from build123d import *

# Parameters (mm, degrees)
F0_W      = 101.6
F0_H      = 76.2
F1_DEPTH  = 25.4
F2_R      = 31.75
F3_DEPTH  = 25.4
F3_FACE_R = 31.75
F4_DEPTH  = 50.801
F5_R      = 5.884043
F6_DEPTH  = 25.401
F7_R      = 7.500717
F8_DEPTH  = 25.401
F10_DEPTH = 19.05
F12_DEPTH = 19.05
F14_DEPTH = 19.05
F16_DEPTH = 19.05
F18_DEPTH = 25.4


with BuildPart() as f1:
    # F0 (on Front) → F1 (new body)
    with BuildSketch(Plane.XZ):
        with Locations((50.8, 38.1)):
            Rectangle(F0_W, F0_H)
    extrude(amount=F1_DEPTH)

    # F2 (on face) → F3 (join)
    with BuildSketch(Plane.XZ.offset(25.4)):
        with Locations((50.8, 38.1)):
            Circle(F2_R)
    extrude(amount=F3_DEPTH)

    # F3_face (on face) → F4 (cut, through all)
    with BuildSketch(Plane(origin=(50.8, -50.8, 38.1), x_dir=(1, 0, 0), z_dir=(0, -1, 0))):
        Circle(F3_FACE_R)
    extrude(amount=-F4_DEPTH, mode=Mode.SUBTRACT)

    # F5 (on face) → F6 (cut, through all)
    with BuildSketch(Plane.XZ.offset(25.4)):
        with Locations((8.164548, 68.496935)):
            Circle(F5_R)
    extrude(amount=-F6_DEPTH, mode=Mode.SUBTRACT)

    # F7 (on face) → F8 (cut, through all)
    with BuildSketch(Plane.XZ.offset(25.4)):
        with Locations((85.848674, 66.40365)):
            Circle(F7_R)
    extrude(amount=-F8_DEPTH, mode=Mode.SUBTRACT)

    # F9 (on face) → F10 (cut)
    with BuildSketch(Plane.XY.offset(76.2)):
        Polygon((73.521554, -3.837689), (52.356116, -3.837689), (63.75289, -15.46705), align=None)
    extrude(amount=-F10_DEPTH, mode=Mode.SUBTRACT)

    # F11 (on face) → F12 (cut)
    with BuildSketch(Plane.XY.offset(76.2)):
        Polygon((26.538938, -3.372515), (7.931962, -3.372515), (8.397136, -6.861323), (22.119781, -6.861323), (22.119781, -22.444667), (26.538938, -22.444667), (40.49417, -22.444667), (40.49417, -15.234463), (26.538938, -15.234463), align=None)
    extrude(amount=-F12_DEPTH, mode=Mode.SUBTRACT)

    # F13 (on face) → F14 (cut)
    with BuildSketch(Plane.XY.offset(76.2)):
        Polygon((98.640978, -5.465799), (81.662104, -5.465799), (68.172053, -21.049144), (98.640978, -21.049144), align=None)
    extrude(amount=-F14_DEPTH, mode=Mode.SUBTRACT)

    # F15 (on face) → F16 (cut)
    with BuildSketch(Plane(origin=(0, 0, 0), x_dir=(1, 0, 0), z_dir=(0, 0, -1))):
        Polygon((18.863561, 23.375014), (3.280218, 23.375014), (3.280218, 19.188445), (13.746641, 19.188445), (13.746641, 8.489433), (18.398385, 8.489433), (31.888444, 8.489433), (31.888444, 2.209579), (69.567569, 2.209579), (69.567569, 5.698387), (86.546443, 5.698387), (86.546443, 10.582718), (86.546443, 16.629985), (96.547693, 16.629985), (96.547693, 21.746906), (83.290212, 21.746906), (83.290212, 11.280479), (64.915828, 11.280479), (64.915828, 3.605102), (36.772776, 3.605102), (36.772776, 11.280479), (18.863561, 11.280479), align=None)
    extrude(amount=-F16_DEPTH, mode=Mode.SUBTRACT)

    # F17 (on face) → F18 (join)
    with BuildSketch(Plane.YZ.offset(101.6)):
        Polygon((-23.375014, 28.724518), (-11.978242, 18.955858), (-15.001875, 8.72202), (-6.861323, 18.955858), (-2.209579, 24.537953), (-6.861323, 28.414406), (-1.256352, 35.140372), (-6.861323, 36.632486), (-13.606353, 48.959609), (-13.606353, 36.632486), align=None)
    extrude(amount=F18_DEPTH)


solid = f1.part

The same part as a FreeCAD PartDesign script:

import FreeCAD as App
import Part
import Sketcher
from FreeCAD import Vector
Q = App.Units.Quantity

doc = App.newDocument("Part")
params = doc.addObject("Spreadsheet::Sheet", "Params")
for row, (alias, value) in enumerate([
    ("sketch1_width", "4 in"),
    ("sketch1_height", "3 in"),
    ("pad1_length", "1 in"),
    ("sketch2_diameter", "2.5 in"),
    ("pad2_length", "1 in"),
    ("sketch3_diameter", "2.5 in"),
    ("pocket4_length", "0.75 in"),
    ("pocket5_length", "0.75 in"),
    ("pocket6_length", "0.75 in"),
    ("pocket7_length", "0.75 in"),
    ("pad3_length", "1 in"),
], start=1):
    params.set(f"A{row}", alias)
    params.set(f"B{row}", "=" + value)
    params.setAlias(f"B{row}", alias)

body = doc.addObject("PartDesign::Body", "Body")

# Sketch on XZ plane
sketch1 = doc.addObject("Sketcher::SketchObject", "Sketch")
body.addObject(sketch1)
sketch1.AttachmentSupport = (doc.XZ_Plane, [""])
sketch1.MapMode = "FlatFace"
sketch1.addGeometry([
    Part.LineSegment(Vector(0, 76, 0), Vector(0, 0, 0)),
    Part.LineSegment(Vector(0, 0, 0), Vector(102, 0, 0)),
    Part.LineSegment(Vector(102, 0, 0), Vector(102, 76, 0)),
    Part.LineSegment(Vector(102, 76, 0), Vector(0, 76, 0)),
], False)
sketch1.addConstraint([
    Sketcher.Constraint("Coincident", 0, 2, 1, 1),
    Sketcher.Constraint("Coincident", 1, 2, 2, 1),
    Sketcher.Constraint("Coincident", 2, 2, 3, 1),
    Sketcher.Constraint("Coincident", 3, 2, 0, 1),
    Sketcher.Constraint("Vertical", 0),
    Sketcher.Constraint("Horizontal", 1),
    Sketcher.Constraint("Vertical", 2),
    Sketcher.Constraint("Horizontal", 3),
    Sketcher.Constraint("Coincident", 0, 2, -1, 1),
    Sketcher.Constraint("DistanceX", 1, 1, 1, 2, Q("4 in")),
    Sketcher.Constraint("DistanceY", 0, 2, 0, 1, Q("3 in")),
])
sketch1.setExpression("Constraints[9]", "Params.sketch1_width")
sketch1.setExpression("Constraints[10]", "Params.sketch1_height")
pad1 = doc.addObject("PartDesign::Pad", "Pad")
body.addObject(pad1)
pad1.Profile = sketch1
pad1.setExpression("Length", "Params.pad1_length")

# Sketch on XZ plane
sketch2 = doc.addObject("Sketcher::SketchObject", "Sketch001")
body.addObject(sketch2)
sketch2.AttachmentSupport = (doc.XZ_Plane, [""])
sketch2.MapMode = "FlatFace"
sketch2.AttachmentOffset = App.Placement(Vector(0, 0, 1 * 25.4), App.Rotation())
sketch2.addGeometry(Part.Circle(Vector(51, 38, 0), Vector(0, 0, 1), 32), False)
sketch2.addConstraint([
    Sketcher.Constraint("Diameter", 0, Q("2.5 in")),
    Sketcher.Constraint("DistanceX", -1, 1, 0, 3, Q("2 in")),
    Sketcher.Constraint("DistanceY", -1, 1, 0, 3, Q("1.5 in")),
])
sketch2.setExpression("Constraints[0]", "Params.sketch2_diameter")
pad2 = doc.addObject("PartDesign::Pad", "Pad001")
body.addObject(pad2)
pad2.Profile = sketch2
pad2.setExpression("Length", "Params.pad2_length")

# Sketch on XZ plane
sketch3 = doc.addObject("Sketcher::SketchObject", "Sketch002")
body.addObject(sketch3)
sketch3.AttachmentSupport = (doc.XZ_Plane, [""])
sketch3.MapMode = "FlatFace"
sketch3.AttachmentOffset = App.Placement(Vector(0, 0, 2 * 25.4), App.Rotation())
sketch3.addGeometry(Part.Circle(Vector(51, 38, 0), Vector(0, 0, 1), 32), False)
sketch3.addConstraint([
    Sketcher.Constraint("Diameter", 0, Q("2.5 in")),
    Sketcher.Constraint("DistanceX", -1, 1, 0, 3, Q("2 in")),
    Sketcher.Constraint("DistanceY", -1, 1, 0, 3, Q("1.5 in")),
])
sketch3.setExpression("Constraints[0]", "Params.sketch3_diameter")
pocket1 = doc.addObject("PartDesign::Pocket", "Pocket")
body.addObject(pocket1)
pocket1.Profile = sketch3
pocket1.Type = "ThroughAll"

# Sketch on XZ plane
sketch4 = doc.addObject("Sketcher::SketchObject", "Sketch003")
body.addObject(sketch4)
sketch4.AttachmentSupport = (doc.XZ_Plane, [""])
sketch4.MapMode = "FlatFace"
sketch4.AttachmentOffset = App.Placement(Vector(0, 0, 1 * 25.4), App.Rotation())
sketch4.addGeometry(Part.Circle(Vector(8, 68, 0), Vector(0, 0, 1), 6), False)
sketch4.addConstraint([
    Sketcher.Constraint("Diameter", 0, 11.768086),
    Sketcher.Constraint("DistanceX", -1, 1, 0, 3, 8.164548),
    Sketcher.Constraint("DistanceY", -1, 1, 0, 3, 68.496935),
])
pocket2 = doc.addObject("PartDesign::Pocket", "Pocket001")
body.addObject(pocket2)
pocket2.Profile = sketch4
pocket2.Type = "ThroughAll"

# Sketch on XZ plane
sketch5 = doc.addObject("Sketcher::SketchObject", "Sketch004")
body.addObject(sketch5)
sketch5.AttachmentSupport = (doc.XZ_Plane, [""])
sketch5.MapMode = "FlatFace"
sketch5.AttachmentOffset = App.Placement(Vector(0, 0, 1 * 25.4), App.Rotation())
sketch5.addGeometry(Part.Circle(Vector(86, 66, 0), Vector(0, 0, 1), 8), False)
sketch5.addConstraint([
    Sketcher.Constraint("Diameter", 0, 15.001434),
    Sketcher.Constraint("DistanceY", -1, 1, 0, 3, 66.40365),
    Sketcher.Constraint("DistanceX", -1, 1, 0, 3, 85.848674),
])
pocket3 = doc.addObject("PartDesign::Pocket", "Pocket002")
body.addObject(pocket3)
pocket3.Profile = sketch5
pocket3.Type = "ThroughAll"

# Sketch on XY plane
sketch6 = doc.addObject("Sketcher::SketchObject", "Sketch005")
body.addObject(sketch6)
sketch6.AttachmentSupport = (doc.XY_Plane, [""])
sketch6.MapMode = "FlatFace"
sketch6.AttachmentOffset = App.Placement(Vector(0, 0, 3 * 25.4), App.Rotation())
sketch6.addGeometry([
    Part.LineSegment(Vector(74, -4, 0), Vector(52, -4, 0)),
    Part.LineSegment(Vector(52, -4, 0), Vector(64, -15, 0)),
    Part.LineSegment(Vector(64, -15, 0), Vector(74, -4, 0)),
], False)
sketch6.addConstraint([
    Sketcher.Constraint("Coincident", 0, 2, 1, 1),
    Sketcher.Constraint("Coincident", 1, 2, 2, 1),
    Sketcher.Constraint("Coincident", 2, 2, 0, 1),
    Sketcher.Constraint("Horizontal", 0),
    Sketcher.Constraint("DistanceX", 0, 2, 0, 1, 21.165438),
    Sketcher.Constraint("DistanceY", 0, 2, -1, 1, 3.837689),
    Sketcher.Constraint("DistanceX", -1, 1, 1, 2, 63.75289),
    Sketcher.Constraint("DistanceY", 1, 2, -1, 1, 15.46705),
    Sketcher.Constraint("Distance", 1, 16.282767),
])
pocket4 = doc.addObject("PartDesign::Pocket", "Pocket003")
body.addObject(pocket4)
pocket4.Profile = sketch6
pocket4.setExpression("Length", "Params.pocket4_length")

# Sketch on XY plane
sketch7 = doc.addObject("Sketcher::SketchObject", "Sketch006")
body.addObject(sketch7)
sketch7.AttachmentSupport = (doc.XY_Plane, [""])
sketch7.MapMode = "FlatFace"
sketch7.AttachmentOffset = App.Placement(Vector(0, 0, 3 * 25.4), App.Rotation())
sketch7.addGeometry([
    Part.LineSegment(Vector(26.5, -3.4, 0), Vector(7.9, -3.4, 0)),  # 0
    Part.LineSegment(Vector(7.9, -3.4, 0), Vector(8.4, -6.9, 0)),  # 1
    Part.LineSegment(Vector(8.4, -6.9, 0), Vector(22.1, -6.9, 0)),  # 2
    Part.LineSegment(Vector(22.1, -6.9, 0), Vector(22.1, -22.4, 0)),  # 3
    Part.LineSegment(Vector(22.1, -22.4, 0), Vector(40.5, -22.4, 0)),  # 4
    Part.LineSegment(Vector(40.5, -22.4, 0), Vector(40.5, -15.2, 0)),  # 5
    Part.LineSegment(Vector(40.5, -15.2, 0), Vector(26.5, -15.2, 0)),  # 6
    Part.LineSegment(Vector(26.5, -15.2, 0), Vector(26.5, -3.4, 0)),  # 7
], False)
sketch7.addConstraint([
    Sketcher.Constraint("Coincident", 0, 2, 1, 1),
    Sketcher.Constraint("Coincident", 1, 2, 2, 1),
    Sketcher.Constraint("Coincident", 2, 2, 3, 1),
    Sketcher.Constraint("Coincident", 3, 2, 4, 1),
    Sketcher.Constraint("Coincident", 4, 2, 5, 1),
    Sketcher.Constraint("Coincident", 5, 2, 6, 1),
    Sketcher.Constraint("Coincident", 6, 2, 7, 1),
    Sketcher.Constraint("Coincident", 7, 2, 0, 1),
    Sketcher.Constraint("Horizontal", 0),
    Sketcher.Constraint("Horizontal", 2),
    Sketcher.Constraint("Vertical", 3),
    Sketcher.Constraint("Horizontal", 4),
    Sketcher.Constraint("Vertical", 5),
    Sketcher.Constraint("Horizontal", 6),
    Sketcher.Constraint("Vertical", 7),
    Sketcher.Constraint("DistanceX", 4, 1, 4, 2, 18.374389),
    Sketcher.Constraint("DistanceX", 6, 2, 6, 1, 13.955232),
    Sketcher.Constraint("DistanceX", 0, 2, 0, 1, 18.606976),
    Sketcher.Constraint("DistanceX", 2, 1, 2, 2, 13.722645),
    Sketcher.Constraint("DistanceY", 3, 2, 3, 1, 15.583344),
    Sketcher.Constraint("DistanceY", 5, 1, 5, 2, 7.210204),
    Sketcher.Constraint("DistanceY", 7, 1, 7, 2, 11.861948),
    Sketcher.Constraint("DistanceX", -1, 1, 2, 2, 22.119781),
    Sketcher.Constraint("DistanceY", 0, 2, -1, 1, 3.372515),
])
pocket5 = doc.addObject("PartDesign::Pocket", "Pocket004")
body.addObject(pocket5)
pocket5.Profile = sketch7
pocket5.setExpression("Length", "Params.pocket5_length")

# Sketch on XY plane
sketch8 = doc.addObject("Sketcher::SketchObject", "Sketch007")
body.addObject(sketch8)
sketch8.AttachmentSupport = (doc.XY_Plane, [""])
sketch8.MapMode = "FlatFace"
sketch8.AttachmentOffset = App.Placement(Vector(0, 0, 3 * 25.4), App.Rotation())
sketch8.addGeometry([
    Part.LineSegment(Vector(99, -5, 0), Vector(82, -5, 0)),
    Part.LineSegment(Vector(82, -5, 0), Vector(68, -21, 0)),
    Part.LineSegment(Vector(68, -21, 0), Vector(99, -21, 0)),
    Part.LineSegment(Vector(99, -21, 0), Vector(99, -5, 0)),
], False)
sketch8.addConstraint([
    Sketcher.Constraint("Coincident", 0, 2, 1, 1),
    Sketcher.Constraint("Coincident", 1, 2, 2, 1),
    Sketcher.Constraint("Coincident", 2, 2, 3, 1),
    Sketcher.Constraint("Coincident", 3, 2, 0, 1),
    Sketcher.Constraint("Horizontal", 0),
    Sketcher.Constraint("Horizontal", 2),
    Sketcher.Constraint("Vertical", 3),
    Sketcher.Constraint("DistanceY", 0, 2, -1, 1, 5.465799),
    Sketcher.Constraint("DistanceX", 0, 2, 0, 1, 16.978874),
    Sketcher.Constraint("DistanceX", 2, 1, 2, 2, 30.468925),
    Sketcher.Constraint("DistanceY", 3, 1, 3, 2, 15.583345),
    Sketcher.Constraint("DistanceX", -1, 1, 2, 2, 98.640978),
])
pocket6 = doc.addObject("PartDesign::Pocket", "Pocket005")
body.addObject(pocket6)
pocket6.Profile = sketch8
pocket6.setExpression("Length", "Params.pocket6_length")

# Sketch on XY plane
sketch9 = doc.addObject("Sketcher::SketchObject", "Sketch008")
body.addObject(sketch9)
sketch9.AttachmentSupport = (doc.XY_Plane, [""])
sketch9.MapMode = "FlatFace"
sketch9.addGeometry([
    Part.LineSegment(Vector(18.9, -23.4, 0), Vector(3.3, -23.4, 0)),  # 0
    Part.LineSegment(Vector(3.3, -23.4, 0), Vector(3.3, -19.2, 0)),  # 1
    Part.LineSegment(Vector(3.3, -19.2, 0), Vector(13.7, -19.2, 0)),  # 2
    Part.LineSegment(Vector(13.7, -19.2, 0), Vector(13.7, -8.5, 0)),  # 3
    Part.LineSegment(Vector(13.7, -8.5, 0), Vector(31.9, -8.5, 0)),  # 4
    Part.LineSegment(Vector(31.9, -8.5, 0), Vector(31.9, -2.2, 0)),  # 5
    Part.LineSegment(Vector(31.9, -2.2, 0), Vector(69.6, -2.2, 0)),  # 6
    Part.LineSegment(Vector(69.6, -2.2, 0), Vector(69.6, -5.7, 0)),  # 7
    Part.LineSegment(Vector(69.6, -5.7, 0), Vector(86.5, -5.7, 0)),  # 8
    Part.LineSegment(Vector(86.5, -5.7, 0), Vector(86.5, -16.6, 0)),  # 9
    Part.LineSegment(Vector(86.5, -16.6, 0), Vector(96.5, -16.6, 0)),  # 10
    Part.LineSegment(Vector(96.5, -16.6, 0), Vector(96.5, -21.7, 0)),  # 11
    Part.LineSegment(Vector(96.5, -21.7, 0), Vector(83.3, -21.7, 0)),  # 12
    Part.LineSegment(Vector(83.3, -21.7, 0), Vector(83.3, -11.3, 0)),  # 13
    Part.LineSegment(Vector(83.3, -11.3, 0), Vector(64.9, -11.3, 0)),  # 14
    Part.LineSegment(Vector(64.9, -11.3, 0), Vector(64.9, -3.6, 0)),  # 15
    Part.LineSegment(Vector(64.9, -3.6, 0), Vector(36.8, -3.6, 0)),  # 16
    Part.LineSegment(Vector(36.8, -3.6, 0), Vector(36.8, -11.3, 0)),  # 17
    Part.LineSegment(Vector(36.8, -11.3, 0), Vector(18.9, -11.3, 0)),  # 18
    Part.LineSegment(Vector(18.9, -11.3, 0), Vector(18.9, -23.4, 0)),  # 19
], False)
sketch9.addConstraint([
    Sketcher.Constraint("Coincident", 0, 2, 1, 1),
    Sketcher.Constraint("Coincident", 1, 2, 2, 1),
    Sketcher.Constraint("Coincident", 2, 2, 3, 1),
    Sketcher.Constraint("Coincident", 3, 2, 4, 1),
    Sketcher.Constraint("Coincident", 4, 2, 5, 1),
    Sketcher.Constraint("Coincident", 5, 2, 6, 1),
    Sketcher.Constraint("Coincident", 6, 2, 7, 1),
    Sketcher.Constraint("Coincident", 7, 2, 8, 1),
    Sketcher.Constraint("Coincident", 8, 2, 9, 1),
    Sketcher.Constraint("Coincident", 9, 2, 10, 1),
    Sketcher.Constraint("Coincident", 10, 2, 11, 1),
    Sketcher.Constraint("Coincident", 11, 2, 12, 1),
    Sketcher.Constraint("Coincident", 12, 2, 13, 1),
    Sketcher.Constraint("Coincident", 13, 2, 14, 1),
    Sketcher.Constraint("Coincident", 14, 2, 15, 1),
    Sketcher.Constraint("Coincident", 15, 2, 16, 1),
    Sketcher.Constraint("Coincident", 16, 2, 17, 1),
    Sketcher.Constraint("Coincident", 17, 2, 18, 1),
    Sketcher.Constraint("Coincident", 18, 2, 19, 1),
    Sketcher.Constraint("Coincident", 19, 2, 0, 1),
    Sketcher.Constraint("Horizontal", 0),
    Sketcher.Constraint("Vertical", 1),
    Sketcher.Constraint("Horizontal", 2),
    Sketcher.Constraint("Vertical", 3),
    Sketcher.Constraint("Horizontal", 4),
    Sketcher.Constraint("Vertical", 5),
    Sketcher.Constraint("Horizontal", 6),
    Sketcher.Constraint("Vertical", 7),
    Sketcher.Constraint("Horizontal", 8),
    Sketcher.Constraint("Vertical", 9),
    Sketcher.Constraint("Horizontal", 10),
    Sketcher.Constraint("Vertical", 11),
    Sketcher.Constraint("Horizontal", 12),
    Sketcher.Constraint("Vertical", 13),
    Sketcher.Constraint("Horizontal", 14),
    Sketcher.Constraint("Vertical", 15),
    Sketcher.Constraint("Horizontal", 16),
    Sketcher.Constraint("Vertical", 17),
    Sketcher.Constraint("Horizontal", 18),
    Sketcher.Constraint("Vertical", 19),
    Sketcher.Constraint("Horizontal", 14, 2, 17, 2),
    Sketcher.Constraint("DistanceY", 9, 2, 9, 1, 10.931598),
    Sketcher.Constraint("DistanceX", 10, 1, 10, 2, 10.00125),
    Sketcher.Constraint("DistanceX", 12, 2, 12, 1, 13.257481),
    Sketcher.Constraint("DistanceY", 1, 1, 1, 2, 4.186569),
    Sketcher.Constraint("DistanceY", 7, 2, 7, 1, 3.488808),
    Sketcher.Constraint("DistanceY", 11, 2, 11, 1, 5.116921),
    Sketcher.Constraint("DistanceY", 15, 2, -1, 1, 3.605102),
    Sketcher.Constraint("DistanceX", 4, 2, 8, 2, 54.657999),
    Sketcher.Constraint("DistanceX", 3, 2, 8, 2, 72.799802),
    Sketcher.Constraint("DistanceY", 14, 2, 6, 2, 9.0709),
    Sketcher.Constraint("DistanceX", 0, 2, 0, 1, 15.583343),
    Sketcher.Constraint("DistanceX", 2, 1, 2, 2, 10.466423),
    Sketcher.Constraint("DistanceX", 6, 1, 6, 2, 37.679125),
    Sketcher.Constraint("DistanceX", 14, 2, 14, 1, 18.374384),
    Sketcher.Constraint("DistanceX", 16, 2, 16, 1, 28.143052),
    Sketcher.Constraint("DistanceY", 3, 1, 3, 2, 10.699012),
    Sketcher.Constraint("DistanceY", 5, 1, 5, 2, 6.279854),
    Sketcher.Constraint("DistanceY", 15, 1, 15, 2, 7.675377),
    Sketcher.Constraint("DistanceX", -1, 1, 0, 2, 3.280218),
])
pocket7 = doc.addObject("PartDesign::Pocket", "Pocket006")
body.addObject(pocket7)
pocket7.Profile = sketch9
pocket7.setExpression("Length", "Params.pocket7_length")
pocket7.Reversed = True

# Sketch on YZ plane
sketch10 = doc.addObject("Sketcher::SketchObject", "Sketch009")
body.addObject(sketch10)
sketch10.AttachmentSupport = (doc.YZ_Plane, [""])
sketch10.MapMode = "FlatFace"
sketch10.AttachmentOffset = App.Placement(Vector(0, 0, 4 * 25.4), App.Rotation())
sketch10.addGeometry([
    Part.LineSegment(Vector(-23, 29, 0), Vector(-12, 19, 0)),  # 0
    Part.LineSegment(Vector(-12, 19, 0), Vector(-15, 9, 0)),  # 1
    Part.LineSegment(Vector(-15, 9, 0), Vector(-7, 19, 0)),  # 2
    Part.LineSegment(Vector(-7, 19, 0), Vector(-2, 25, 0)),  # 3
    Part.LineSegment(Vector(-2, 25, 0), Vector(-7, 28, 0)),  # 4
    Part.LineSegment(Vector(-7, 28, 0), Vector(-1, 35, 0)),  # 5
    Part.LineSegment(Vector(-1, 35, 0), Vector(-7, 37, 0)),  # 6
    Part.LineSegment(Vector(-7, 37, 0), Vector(-14, 49, 0)),  # 7
    Part.LineSegment(Vector(-14, 49, 0), Vector(-14, 37, 0)),  # 8
    Part.LineSegment(Vector(-14, 37, 0), Vector(-23, 29, 0)),  # 9
], False)
sketch10.addConstraint([
    Sketcher.Constraint("Coincident", 0, 2, 1, 1),
    Sketcher.Constraint("Coincident", 1, 2, 2, 1),
    Sketcher.Constraint("Coincident", 2, 2, 3, 1),
    Sketcher.Constraint("Coincident", 3, 2, 4, 1),
    Sketcher.Constraint("Coincident", 4, 2, 5, 1),
    Sketcher.Constraint("Coincident", 5, 2, 6, 1),
    Sketcher.Constraint("Coincident", 6, 2, 7, 1),
    Sketcher.Constraint("Coincident", 7, 2, 8, 1),
    Sketcher.Constraint("Coincident", 8, 2, 9, 1),
    Sketcher.Constraint("Coincident", 9, 2, 0, 1),
    Sketcher.Constraint("Vertical", 8),
    Sketcher.Constraint("Perpendicular", 3, 4),
    Sketcher.Constraint("Perpendicular", 4, 5),
    Sketcher.Constraint("Horizontal", 0, 2, 2, 2),
    Sketcher.Constraint("Horizontal", 6, 2, 8, 2),
    Sketcher.Constraint("Vertical", 2, 2, 4, 2),
    Sketcher.Constraint("Vertical", 4, 2, 6, 2),
    Sketcher.Constraint("Angle", 1, Q("-106.46001 deg")),
    Sketcher.Constraint("DistanceX", 7, 2, 5, 2, 12.350001),
    Sketcher.Constraint("Distance", 3, 7.266258),
    Sketcher.Constraint("Distance", 6, 5.800181),
    Sketcher.Constraint("Distance", 7, 14.051811),
    Sketcher.Constraint("Distance", 9, 12.568321),
    Sketcher.Constraint("DistanceY", 8, 2, 8, 1, 12.327123),
    Sketcher.Constraint("DistanceY", -1, 1, 1, 2, 8.72202),
    Sketcher.Constraint("DistanceX", 3, 2, -1, 1, 2.209579),
    Sketcher.Constraint("DistanceX", 5, 2, -1, 1, 1.256352),
    Sketcher.Constraint("DistanceY", -1, 1, 7, 2, 48.959609),
    Sketcher.Constraint("DistanceY", -1, 1, 9, 2, 28.724518),
    Sketcher.Constraint("DistanceX", 0, 2, 2, 2, 5.116919),
])
pad3 = doc.addObject("PartDesign::Pad", "Pad002")
body.addObject(pad3)
pad3.Profile = sketch10
pad3.setExpression("Length", "Params.pad3_length")

doc.recompute()
